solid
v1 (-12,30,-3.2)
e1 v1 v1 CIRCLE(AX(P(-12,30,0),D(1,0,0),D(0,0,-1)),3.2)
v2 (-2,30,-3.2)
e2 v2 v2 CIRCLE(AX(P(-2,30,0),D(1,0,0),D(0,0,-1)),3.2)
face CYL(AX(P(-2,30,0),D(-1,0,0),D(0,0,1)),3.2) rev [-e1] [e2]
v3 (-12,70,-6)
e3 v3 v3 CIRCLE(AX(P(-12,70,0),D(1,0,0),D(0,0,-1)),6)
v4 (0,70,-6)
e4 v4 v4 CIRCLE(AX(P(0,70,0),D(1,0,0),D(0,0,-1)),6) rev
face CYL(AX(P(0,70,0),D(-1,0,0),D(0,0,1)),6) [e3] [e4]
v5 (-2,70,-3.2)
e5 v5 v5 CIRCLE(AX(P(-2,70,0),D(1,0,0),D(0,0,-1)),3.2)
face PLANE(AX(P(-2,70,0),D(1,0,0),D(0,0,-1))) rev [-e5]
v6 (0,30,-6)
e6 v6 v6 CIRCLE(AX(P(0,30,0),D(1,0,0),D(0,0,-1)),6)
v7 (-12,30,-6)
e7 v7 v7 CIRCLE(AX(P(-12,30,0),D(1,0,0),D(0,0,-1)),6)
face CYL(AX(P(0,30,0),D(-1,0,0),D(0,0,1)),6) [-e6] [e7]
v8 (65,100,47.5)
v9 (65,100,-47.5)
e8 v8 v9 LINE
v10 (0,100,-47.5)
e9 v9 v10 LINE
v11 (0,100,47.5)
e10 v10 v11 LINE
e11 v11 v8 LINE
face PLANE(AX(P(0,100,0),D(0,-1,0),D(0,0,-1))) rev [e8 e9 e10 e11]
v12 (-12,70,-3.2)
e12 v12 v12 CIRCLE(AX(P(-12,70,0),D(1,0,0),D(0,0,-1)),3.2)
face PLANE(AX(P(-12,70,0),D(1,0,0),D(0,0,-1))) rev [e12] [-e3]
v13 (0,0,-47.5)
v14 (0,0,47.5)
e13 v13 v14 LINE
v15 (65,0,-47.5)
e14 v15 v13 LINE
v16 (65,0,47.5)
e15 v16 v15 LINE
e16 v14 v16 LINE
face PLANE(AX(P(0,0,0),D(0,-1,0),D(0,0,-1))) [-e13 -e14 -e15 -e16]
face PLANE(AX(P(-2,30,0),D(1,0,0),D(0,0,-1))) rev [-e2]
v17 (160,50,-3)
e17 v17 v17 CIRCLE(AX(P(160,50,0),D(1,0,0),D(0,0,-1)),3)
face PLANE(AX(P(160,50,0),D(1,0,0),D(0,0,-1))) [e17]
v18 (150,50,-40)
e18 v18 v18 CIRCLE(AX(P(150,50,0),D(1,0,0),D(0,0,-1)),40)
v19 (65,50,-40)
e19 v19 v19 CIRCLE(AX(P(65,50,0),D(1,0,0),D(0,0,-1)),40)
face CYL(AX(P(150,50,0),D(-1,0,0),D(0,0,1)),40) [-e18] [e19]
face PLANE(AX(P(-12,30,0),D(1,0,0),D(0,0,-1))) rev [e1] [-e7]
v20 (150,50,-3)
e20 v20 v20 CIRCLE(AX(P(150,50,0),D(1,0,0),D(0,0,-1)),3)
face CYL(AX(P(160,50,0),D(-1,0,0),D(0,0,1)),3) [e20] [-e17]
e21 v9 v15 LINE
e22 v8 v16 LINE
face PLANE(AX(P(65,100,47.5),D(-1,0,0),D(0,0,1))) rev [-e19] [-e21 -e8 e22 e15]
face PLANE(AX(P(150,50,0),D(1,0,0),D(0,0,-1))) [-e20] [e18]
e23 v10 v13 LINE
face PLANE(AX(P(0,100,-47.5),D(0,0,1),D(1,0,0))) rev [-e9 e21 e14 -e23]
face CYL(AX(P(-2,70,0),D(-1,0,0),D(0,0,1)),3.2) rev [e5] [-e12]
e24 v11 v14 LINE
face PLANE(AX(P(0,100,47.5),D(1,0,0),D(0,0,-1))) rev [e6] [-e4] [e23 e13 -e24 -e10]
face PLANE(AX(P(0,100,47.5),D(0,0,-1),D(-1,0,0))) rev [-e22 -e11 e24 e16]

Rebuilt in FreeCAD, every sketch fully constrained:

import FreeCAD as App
import Part
import Sketcher
from FreeCAD import Vector

doc = App.newDocument("Part")
body = doc.addObject("PartDesign::Body", "Body")

sketch1 = body.newObject("Sketcher::SketchObject", "Sketch")
sketch1.AttachmentSupport = (doc.getObject("XZ_Plane"), [""])
sketch1.MapMode = "FlatFace"
sketch1.addGeometry([
    Part.LineSegment(Vector(0, -48, 0), Vector(0, 48, 0)),
    Part.LineSegment(Vector(0, 48, 0), Vector(65, 48, 0)),
    Part.LineSegment(Vector(65, 48, 0), Vector(65, -48, 0)),
    Part.LineSegment(Vector(65, -48, 0), Vector(0, -48, 0)),
], False)
sketch1.addConstraint([
    Sketcher.Constraint("Coincident", 0, 2, 1, 1),
    Sketcher.Constraint("Coincident", 1, 2, 2, 1),
    Sketcher.Constraint("Coincident", 2, 2, 3, 1),
    Sketcher.Constraint("Coincident", 3, 2, 0, 1),
    Sketcher.Constraint("Vertical", 0),
    Sketcher.Constraint("Horizontal", 1),
    Sketcher.Constraint("Vertical", 2),
    Sketcher.Constraint("Horizontal", 3),
    Sketcher.Constraint("Symmetric", 0, 2, 3, 2, -1, 1),
    Sketcher.Constraint("DistanceX", 1, 1, 1, 2, 65.0),
    Sketcher.Constraint("DistanceY", 0, 1, 0, 2, 95.0),
])
pad1 = body.newObject("PartDesign::Pad", "Pad")
pad1.Profile = sketch1
pad1.Length = 100
pad1.Reversed = True

sketch2 = body.newObject("Sketcher::SketchObject", "Sketch001")
sketch2.AttachmentSupport = (doc.getObject("YZ_Plane"), [""])
sketch2.MapMode = "FlatFace"
sketch2.AttachmentOffset = App.Placement(Vector(0, 0, 65), App.Rotation())
sketch2.addGeometry(Part.Circle(Vector(50, 0, 0), Vector(0, 0, 1), 40), False)
sketch2.addConstraint([
    Sketcher.Constraint("PointOnObject", 0, 3, -1),
    Sketcher.Constraint("Diameter", 0, 80.0),
    Sketcher.Constraint("DistanceX", -1, 1, 0, 3, 50.0),
])
pad2 = body.newObject("PartDesign::Pad", "Pad001")
pad2.Profile = sketch2
pad2.Length = 85

sketch3 = body.newObject("Sketcher::SketchObject", "Sketch002")
sketch3.AttachmentSupport = (doc.getObject("YZ_Plane"), [""])
sketch3.MapMode = "FlatFace"
sketch3.AttachmentOffset = App.Placement(Vector(0, 0, -12), App.Rotation())
sketch3.addGeometry(Part.Circle(Vector(30, 0, 0), Vector(0, 0, 1), 6), False)
sketch3.addConstraint([
    Sketcher.Constraint("PointOnObject", 0, 3, -1),
    Sketcher.Constraint("Diameter", 0, 12.0),
    Sketcher.Constraint("DistanceX", -1, 1, 0, 3, 30.0),
])
pad3 = body.newObject("PartDesign::Pad", "Pad002")
pad3.Profile = sketch3
pad3.Length = 12

sketch4 = body.newObject("Sketcher::SketchObject", "Sketch003")
sketch4.AttachmentSupport = (doc.getObject("YZ_Plane"), [""])
sketch4.MapMode = "FlatFace"
sketch4.AttachmentOffset = App.Placement(Vector(0, 0, -12), App.Rotation())
sketch4.addGeometry(Part.Circle(Vector(30, 0, 0), Vector(0, 0, 1), 3.2), False)
sketch4.addConstraint([
    Sketcher.Constraint("PointOnObject", 0, 3, -1),
    Sketcher.Constraint("Diameter", 0, 6.4),
    Sketcher.Constraint("DistanceX", -1, 1, 0, 3, 30.0),
])
pocket1 = body.newObject("PartDesign::Pocket", "Pocket")
pocket1.Profile = sketch4
pocket1.Length = 10
pocket1.Reversed = True

sketch5 = body.newObject("Sketcher::SketchObject", "Sketch004")
sketch5.AttachmentSupport = (doc.getObject("YZ_Plane"), [""])
sketch5.MapMode = "FlatFace"
sketch5.AttachmentOffset = App.Placement(Vector(0, 0, -12), App.Rotation())
sketch5.addGeometry(Part.Circle(Vector(70, 0, 0), Vector(0, 0, 1), 6), False)
sketch5.addConstraint([
    Sketcher.Constraint("PointOnObject", 0, 3, -1),
    Sketcher.Constraint("Diameter", 0, 12.0),
    Sketcher.Constraint("DistanceX", -1, 1, 0, 3, 70.0),
])
pad4 = body.newObject("PartDesign::Pad", "Pad003")
pad4.Profile = sketch5
pad4.Length = 12

sketch6 = body.newObject("Sketcher::SketchObject", "Sketch005")
sketch6.AttachmentSupport = (doc.getObject("YZ_Plane"), [""])
sketch6.MapMode = "FlatFace"
sketch6.AttachmentOffset = App.Placement(Vector(0, 0, -12), App.Rotation())
sketch6.addGeometry(Part.Circle(Vector(70, 0, 0), Vector(0, 0, 1), 3.2), False)
sketch6.addConstraint([
    Sketcher.Constraint("PointOnObject", 0, 3, -1),
    Sketcher.Constraint("Diameter", 0, 6.4),
    Sketcher.Constraint("DistanceX", -1, 1, 0, 3, 70.0),
])
pocket2 = body.newObject("PartDesign::Pocket", "Pocket001")
pocket2.Profile = sketch6
pocket2.Length = 10
pocket2.Reversed = True

sketch7 = body.newObject("Sketcher::SketchObject", "Sketch006")
sketch7.AttachmentSupport = (doc.getObject("YZ_Plane"), [""])
sketch7.MapMode = "FlatFace"
sketch7.AttachmentOffset = App.Placement(Vector(0, 0, 150), App.Rotation())
sketch7.addGeometry(Part.Circle(Vector(50, 0, 0), Vector(0, 0, 1), 3), False)
sketch7.addConstraint([
    Sketcher.Constraint("PointOnObject", 0, 3, -1),
    Sketcher.Constraint("Diameter", 0, 6.0),
    Sketcher.Constraint("DistanceX", -1, 1, 0, 3, 50.0),
])
pad5 = body.newObject("PartDesign::Pad", "Pad004")
pad5.Profile = sketch7
pad5.Length = 10

doc.recompute()
